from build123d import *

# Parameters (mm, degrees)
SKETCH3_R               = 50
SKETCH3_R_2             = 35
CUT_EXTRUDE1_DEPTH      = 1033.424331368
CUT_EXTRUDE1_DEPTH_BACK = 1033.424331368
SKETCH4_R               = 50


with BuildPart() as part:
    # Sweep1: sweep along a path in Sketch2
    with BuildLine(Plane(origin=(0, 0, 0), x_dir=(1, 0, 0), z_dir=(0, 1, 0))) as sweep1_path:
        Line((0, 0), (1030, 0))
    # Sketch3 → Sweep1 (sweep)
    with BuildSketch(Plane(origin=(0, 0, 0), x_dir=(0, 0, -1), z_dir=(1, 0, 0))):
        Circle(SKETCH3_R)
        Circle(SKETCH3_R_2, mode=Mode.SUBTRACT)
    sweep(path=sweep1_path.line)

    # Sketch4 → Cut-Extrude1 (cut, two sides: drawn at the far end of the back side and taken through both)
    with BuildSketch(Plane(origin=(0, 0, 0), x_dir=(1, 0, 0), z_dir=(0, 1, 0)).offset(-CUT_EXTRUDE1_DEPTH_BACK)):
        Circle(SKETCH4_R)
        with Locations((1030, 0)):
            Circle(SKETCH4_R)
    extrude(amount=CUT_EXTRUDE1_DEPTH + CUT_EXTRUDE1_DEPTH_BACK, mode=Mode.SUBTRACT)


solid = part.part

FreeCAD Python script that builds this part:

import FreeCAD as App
import Part
import Sketcher

V = App.Vector

doc = App.newDocument("Part")
params = doc.addObject("Spreadsheet::Sheet", "Params")
for row, (alias, value) in enumerate([
    ("sketch1_diameter", "100 mm"),
    ("sketch1_diameter2", "70 mm"),
    ("sketch2_width", "1030 mm"),
    ("sketch3_diameter", "100 mm"),
], start=1):
    params.set(f"A{row}", alias)
    params.set(f"B{row}", "=" + value)
    params.setAlias(f"B{row}", alias)

body = doc.addObject("PartDesign::Body", "Body")

# Sketch on YZ plane
sketch1 = body.newObject("Sketcher::SketchObject", "Sketch")
sketch1.AttachmentSupport = (doc.getObject("YZ_Plane"), [""])
sketch1.MapMode = "FlatFace"
sketch1.addGeometry([
    Part.Circle(V(0, 0, 0), V(0, 0, 1), 50),
    Part.Circle(V(0, 0, 0), V(0, 0, 1), 35),
], False)
sketch1.addConstraint([
    Sketcher.Constraint("Coincident", 0, 3, -1, 1),
    Sketcher.Constraint("Coincident", 1, 3, -1, 1),
    Sketcher.Constraint("Diameter", 0, 100.0),
    Sketcher.Constraint("Diameter", 1, 70.0),
])
sketch1.setExpression("Constraints[2]", "Params.sketch1_diameter")
sketch1.setExpression("Constraints[3]", "Params.sketch1_diameter2")

# Sketch on XY plane
sketch2 = body.newObject("Sketcher::SketchObject", "Sketch001")
sketch2.AttachmentSupport = (doc.getObject("XY_Plane"), [""])
sketch2.MapMode = "FlatFace"
sketch2.addGeometry(Part.LineSegment(V(0, 0, 0), V(1030, 0, 0)), False)
sketch2.addConstraint([
    Sketcher.Constraint("Horizontal", 0),
    Sketcher.Constraint("Coincident", 0, 1, -1, 1),
    Sketcher.Constraint("DistanceX", 0, 1, 0, 2, 1030.0),
])
sketch2.setExpression("Constraints[2]", "Params.sketch2_width")
doc.recompute()

additivepipe = body.newObject("PartDesign::AdditivePipe", "AdditivePipe")
additivepipe.Profile = sketch1
additivepipe.Spine = (sketch2, ["Edge1"])

# Sketch on XZ plane
sketch3 = body.newObject("Sketcher::SketchObject", "Sketch002")
sketch3.AttachmentSupport = (doc.getObject("XZ_Plane"), [""])
sketch3.MapMode = "FlatFace"
sketch3.addGeometry([
    Part.Circle(V(0, 0, 0), V(0, 0, 1), 50),
    Part.Circle(V(1030, 0, 0), V(0, 0, 1), 50),
], False)
sketch3.addConstraint([
    Sketcher.Constraint("Coincident", 0, 3, -1, 1),
    Sketcher.Constraint("Equal", 0, 1),
    Sketcher.Constraint("PointOnObject", 1, 3, -1),
    Sketcher.Constraint("Diameter", 0, 100.0),
    Sketcher.Constraint("DistanceX", -1, 1, 1, 3, 1030.0),
])
sketch3.setExpression("Constraints[3]", "Params.sketch3_diameter")
pocket1 = body.newObject("PartDesign::Pocket", "Pocket")
pocket1.Profile = sketch3
pocket1.Type = "ThroughAll"
pocket1.Midplane = True

doc.recompute()
